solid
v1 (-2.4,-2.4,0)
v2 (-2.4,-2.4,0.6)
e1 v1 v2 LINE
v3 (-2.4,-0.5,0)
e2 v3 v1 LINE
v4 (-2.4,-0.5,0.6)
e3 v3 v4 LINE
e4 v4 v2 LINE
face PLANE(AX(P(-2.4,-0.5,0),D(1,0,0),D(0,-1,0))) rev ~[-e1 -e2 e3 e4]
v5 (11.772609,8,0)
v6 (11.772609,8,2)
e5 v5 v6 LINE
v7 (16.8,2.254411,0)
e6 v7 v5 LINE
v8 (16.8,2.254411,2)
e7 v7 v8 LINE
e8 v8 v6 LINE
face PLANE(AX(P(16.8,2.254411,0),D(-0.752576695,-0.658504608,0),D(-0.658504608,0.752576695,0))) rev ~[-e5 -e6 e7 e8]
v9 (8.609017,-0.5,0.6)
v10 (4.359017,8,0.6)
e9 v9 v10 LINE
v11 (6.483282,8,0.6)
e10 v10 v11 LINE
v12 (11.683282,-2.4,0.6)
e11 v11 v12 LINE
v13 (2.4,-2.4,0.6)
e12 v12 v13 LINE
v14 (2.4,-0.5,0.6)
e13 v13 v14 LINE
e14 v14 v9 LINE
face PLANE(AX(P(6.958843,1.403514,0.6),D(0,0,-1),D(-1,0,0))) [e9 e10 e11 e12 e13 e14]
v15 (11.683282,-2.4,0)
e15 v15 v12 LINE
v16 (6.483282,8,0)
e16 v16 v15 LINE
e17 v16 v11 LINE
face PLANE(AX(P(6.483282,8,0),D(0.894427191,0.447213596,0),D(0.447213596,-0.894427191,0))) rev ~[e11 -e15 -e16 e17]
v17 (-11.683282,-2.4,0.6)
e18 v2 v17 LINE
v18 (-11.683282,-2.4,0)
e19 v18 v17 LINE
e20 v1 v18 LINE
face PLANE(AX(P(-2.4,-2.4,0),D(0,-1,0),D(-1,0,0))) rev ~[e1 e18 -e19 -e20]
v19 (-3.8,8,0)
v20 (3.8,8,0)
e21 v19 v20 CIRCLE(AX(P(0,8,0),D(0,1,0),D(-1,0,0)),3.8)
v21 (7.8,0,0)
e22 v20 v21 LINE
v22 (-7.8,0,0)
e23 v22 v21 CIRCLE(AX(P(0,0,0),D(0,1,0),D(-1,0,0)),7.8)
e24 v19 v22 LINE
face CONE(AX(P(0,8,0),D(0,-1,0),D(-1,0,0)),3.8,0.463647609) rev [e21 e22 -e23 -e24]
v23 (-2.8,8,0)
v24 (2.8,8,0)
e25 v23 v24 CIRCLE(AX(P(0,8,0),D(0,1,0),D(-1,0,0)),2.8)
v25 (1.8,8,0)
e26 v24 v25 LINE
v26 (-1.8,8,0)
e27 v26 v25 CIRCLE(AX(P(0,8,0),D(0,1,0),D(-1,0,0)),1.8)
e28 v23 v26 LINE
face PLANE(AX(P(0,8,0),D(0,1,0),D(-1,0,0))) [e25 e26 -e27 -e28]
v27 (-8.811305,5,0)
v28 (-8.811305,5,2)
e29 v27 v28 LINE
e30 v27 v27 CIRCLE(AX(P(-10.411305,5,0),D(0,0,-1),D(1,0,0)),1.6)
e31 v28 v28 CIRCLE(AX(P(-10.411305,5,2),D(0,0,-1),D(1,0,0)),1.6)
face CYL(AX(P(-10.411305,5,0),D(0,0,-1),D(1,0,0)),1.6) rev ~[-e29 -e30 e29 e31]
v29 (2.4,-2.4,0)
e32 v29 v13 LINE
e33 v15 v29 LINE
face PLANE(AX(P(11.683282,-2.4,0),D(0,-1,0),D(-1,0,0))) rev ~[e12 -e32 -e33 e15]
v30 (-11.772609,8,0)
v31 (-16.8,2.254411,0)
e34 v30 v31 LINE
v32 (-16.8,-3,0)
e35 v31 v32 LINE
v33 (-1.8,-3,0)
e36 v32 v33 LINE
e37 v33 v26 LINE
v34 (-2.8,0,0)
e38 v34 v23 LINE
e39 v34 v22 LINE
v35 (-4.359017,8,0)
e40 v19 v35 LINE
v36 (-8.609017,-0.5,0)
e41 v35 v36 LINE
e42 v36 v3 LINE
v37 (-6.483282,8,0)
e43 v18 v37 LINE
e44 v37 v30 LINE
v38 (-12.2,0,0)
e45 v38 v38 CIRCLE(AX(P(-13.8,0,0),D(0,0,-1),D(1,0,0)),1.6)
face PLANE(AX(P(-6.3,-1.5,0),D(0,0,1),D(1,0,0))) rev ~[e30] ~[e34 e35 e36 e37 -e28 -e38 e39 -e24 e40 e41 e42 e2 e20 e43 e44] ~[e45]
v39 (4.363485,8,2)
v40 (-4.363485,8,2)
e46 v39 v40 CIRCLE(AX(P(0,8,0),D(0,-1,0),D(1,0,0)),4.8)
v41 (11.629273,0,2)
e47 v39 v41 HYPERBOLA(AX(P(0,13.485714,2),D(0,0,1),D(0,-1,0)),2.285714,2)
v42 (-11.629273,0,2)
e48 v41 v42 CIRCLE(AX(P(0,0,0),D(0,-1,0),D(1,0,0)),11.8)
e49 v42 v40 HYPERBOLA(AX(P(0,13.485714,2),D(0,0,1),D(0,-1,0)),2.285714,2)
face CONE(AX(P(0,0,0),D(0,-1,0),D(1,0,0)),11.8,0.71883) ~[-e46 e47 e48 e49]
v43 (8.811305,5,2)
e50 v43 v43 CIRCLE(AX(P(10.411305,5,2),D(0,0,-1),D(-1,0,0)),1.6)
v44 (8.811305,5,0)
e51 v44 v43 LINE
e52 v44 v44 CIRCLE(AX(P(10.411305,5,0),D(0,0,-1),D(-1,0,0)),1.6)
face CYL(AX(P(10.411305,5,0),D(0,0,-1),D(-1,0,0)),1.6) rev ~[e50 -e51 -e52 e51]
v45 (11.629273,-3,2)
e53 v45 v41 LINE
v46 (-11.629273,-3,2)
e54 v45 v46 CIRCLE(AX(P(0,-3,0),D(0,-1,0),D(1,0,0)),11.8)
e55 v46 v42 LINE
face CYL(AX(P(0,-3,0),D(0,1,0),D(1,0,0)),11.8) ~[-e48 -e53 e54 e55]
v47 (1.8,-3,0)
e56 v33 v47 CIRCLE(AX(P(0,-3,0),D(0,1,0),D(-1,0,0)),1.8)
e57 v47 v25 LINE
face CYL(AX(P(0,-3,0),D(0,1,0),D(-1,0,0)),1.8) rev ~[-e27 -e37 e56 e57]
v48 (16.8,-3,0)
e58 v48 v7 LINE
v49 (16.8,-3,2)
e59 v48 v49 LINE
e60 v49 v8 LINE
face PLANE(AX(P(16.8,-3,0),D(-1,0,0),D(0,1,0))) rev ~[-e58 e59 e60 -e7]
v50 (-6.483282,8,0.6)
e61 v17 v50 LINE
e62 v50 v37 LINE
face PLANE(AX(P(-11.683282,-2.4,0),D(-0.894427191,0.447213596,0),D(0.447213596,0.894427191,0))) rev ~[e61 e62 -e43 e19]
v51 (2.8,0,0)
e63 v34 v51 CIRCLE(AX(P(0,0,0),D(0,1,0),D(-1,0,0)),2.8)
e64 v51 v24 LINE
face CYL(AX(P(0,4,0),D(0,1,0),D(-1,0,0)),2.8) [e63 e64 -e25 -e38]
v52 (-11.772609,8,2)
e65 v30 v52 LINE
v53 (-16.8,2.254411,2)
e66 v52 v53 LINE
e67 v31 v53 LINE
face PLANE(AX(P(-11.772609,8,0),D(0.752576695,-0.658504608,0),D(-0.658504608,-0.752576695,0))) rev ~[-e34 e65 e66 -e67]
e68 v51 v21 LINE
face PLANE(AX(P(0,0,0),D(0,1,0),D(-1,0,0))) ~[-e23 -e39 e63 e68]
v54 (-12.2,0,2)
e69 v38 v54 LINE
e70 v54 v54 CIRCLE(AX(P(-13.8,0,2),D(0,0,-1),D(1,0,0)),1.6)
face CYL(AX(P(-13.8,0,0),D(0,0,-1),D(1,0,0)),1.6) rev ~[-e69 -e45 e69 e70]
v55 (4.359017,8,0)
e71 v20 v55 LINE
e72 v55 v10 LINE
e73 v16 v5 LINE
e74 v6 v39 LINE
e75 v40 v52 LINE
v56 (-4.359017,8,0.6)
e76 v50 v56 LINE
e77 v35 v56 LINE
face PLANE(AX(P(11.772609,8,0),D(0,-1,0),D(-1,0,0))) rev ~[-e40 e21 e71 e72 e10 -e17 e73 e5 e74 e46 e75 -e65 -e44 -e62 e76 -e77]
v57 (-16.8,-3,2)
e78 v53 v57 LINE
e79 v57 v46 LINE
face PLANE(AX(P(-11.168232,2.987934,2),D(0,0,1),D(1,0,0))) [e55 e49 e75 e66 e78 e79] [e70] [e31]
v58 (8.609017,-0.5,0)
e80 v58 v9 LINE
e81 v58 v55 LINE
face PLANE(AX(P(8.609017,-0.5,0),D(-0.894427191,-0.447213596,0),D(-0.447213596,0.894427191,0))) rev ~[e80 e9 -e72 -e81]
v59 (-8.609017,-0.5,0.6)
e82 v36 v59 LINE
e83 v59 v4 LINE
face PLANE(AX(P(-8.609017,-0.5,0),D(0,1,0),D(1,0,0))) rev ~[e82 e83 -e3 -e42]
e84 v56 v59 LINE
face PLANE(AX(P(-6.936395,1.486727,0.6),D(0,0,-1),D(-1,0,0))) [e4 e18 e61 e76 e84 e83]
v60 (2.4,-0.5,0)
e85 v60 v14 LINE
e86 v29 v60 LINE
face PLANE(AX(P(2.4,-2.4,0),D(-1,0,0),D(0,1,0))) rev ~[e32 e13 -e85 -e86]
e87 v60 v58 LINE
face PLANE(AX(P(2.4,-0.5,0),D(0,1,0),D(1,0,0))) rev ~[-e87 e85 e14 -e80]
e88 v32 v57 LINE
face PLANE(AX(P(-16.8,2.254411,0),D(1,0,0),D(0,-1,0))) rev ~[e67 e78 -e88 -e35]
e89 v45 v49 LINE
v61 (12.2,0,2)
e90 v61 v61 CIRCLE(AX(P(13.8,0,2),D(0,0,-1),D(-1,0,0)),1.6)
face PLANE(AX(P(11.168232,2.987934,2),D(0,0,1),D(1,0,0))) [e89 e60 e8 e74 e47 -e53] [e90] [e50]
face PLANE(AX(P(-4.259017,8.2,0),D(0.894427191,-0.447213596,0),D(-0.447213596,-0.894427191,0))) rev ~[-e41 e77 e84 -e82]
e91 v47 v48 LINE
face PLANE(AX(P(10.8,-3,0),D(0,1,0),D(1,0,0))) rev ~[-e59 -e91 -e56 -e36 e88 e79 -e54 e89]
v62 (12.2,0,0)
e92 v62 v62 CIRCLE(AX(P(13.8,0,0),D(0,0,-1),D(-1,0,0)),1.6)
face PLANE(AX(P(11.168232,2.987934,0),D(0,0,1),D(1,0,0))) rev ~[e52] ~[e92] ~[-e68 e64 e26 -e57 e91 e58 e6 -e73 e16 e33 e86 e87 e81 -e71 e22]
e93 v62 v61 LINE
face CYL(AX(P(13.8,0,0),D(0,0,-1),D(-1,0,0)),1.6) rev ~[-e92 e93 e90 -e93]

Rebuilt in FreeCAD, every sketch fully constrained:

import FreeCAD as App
import Part
import Sketcher
Q = App.Units.Quantity


def add_polygon(sketch, points):
    """Adds a closed chain of lines whose ends are joined by coincident constraints."""
    first, n = sketch.GeometryCount, len(points)
    for a, b in zip(points, points[1:] + points[:1]):
        sketch.addGeometry(Part.LineSegment(App.Vector(*a, 0), App.Vector(*b, 0)), False)
    for i in range(n):
        sketch.addConstraint(Sketcher.Constraint("Coincident", first + i, 2, first + (i + 1) % n, 1))

doc = App.newDocument("Part")
body = doc.addObject("PartDesign::Body", "Body")

# Sketch on XY plane
sketch1 = body.newObject("Sketcher::SketchObject", "Sketch")
sketch1.AttachmentSupport = (doc.getObject("XY_Plane"), [""])
sketch1.MapMode = "FlatFace"
add_polygon(sketch1, [(-1.8, -3), (-1.8, 8), (-2.8, 8), (-2.8, 0), (-7.8, 0), (-3.8, 8), (-10.8, 0), (-10.8, -3)])  # lines 0-7
sketch1.addConstraint(Sketcher.Constraint("Vertical", 0))
sketch1.addConstraint(Sketcher.Constraint("Horizontal", 1))
sketch1.addConstraint(Sketcher.Constraint("Vertical", 2))
sketch1.addConstraint(Sketcher.Constraint("Horizontal", 3))
sketch1.addConstraint(Sketcher.Constraint("Vertical", 6))
sketch1.addConstraint(Sketcher.Constraint("Horizontal", 7))
sketch1.addConstraint(Sketcher.Constraint("PointOnObject", 2, 2, -1))
sketch1.addConstraint(Sketcher.Constraint("PointOnObject", 5, 2, -1))
sketch1.addConstraint(Sketcher.Constraint("Horizontal", 1, 2, 4, 2))
sketch1.addConstraint(Sketcher.Constraint("DistanceX", 1, 2, 1, 1, Q("1 mm")))
sketch1.addConstraint(Sketcher.Constraint("DistanceX", 3, 2, 3, 1, Q("5 mm")))
sketch1.addConstraint(Sketcher.Constraint("DistanceX", 7, 1, 7, 2, Q("9 mm")))
sketch1.addConstraint(Sketcher.Constraint("DistanceY", 0, 1, 0, 2, Q("11 mm")))
sketch1.addConstraint(Sketcher.Constraint("DistanceY", 2, 2, 2, 1, Q("8 mm")))
sketch1.addConstraint(Sketcher.Constraint("DistanceX", 4, 2, 1, 2, Q("1 mm")))
sketch1.addConstraint(Sketcher.Constraint("DistanceX", 0, 2, -1, 1, Q("1.8 mm")))
revolution = body.newObject("PartDesign::Revolution", "Revolution")
revolution.Profile = sketch1
revolution.ReferenceAxis = (sketch1, ["V_Axis"])
revolution.Angle = 180
body2 = doc.addObject("PartDesign::Body", "Body001")

# Sketch on XY plane
sketch2 = body2.newObject("Sketcher::SketchObject", "Sketch001")
sketch2.AttachmentSupport = (doc.getObject("XY_Plane001"), [""])
sketch2.MapMode = "FlatFace"
add_polygon(sketch2, [(16.8, -3), (10.8, -3), (10.8, 0), (3.8, 8), (11.8, 8), (16.8, 2.3)])  # lines 0-5
sketch2.addGeometry(Part.Circle(App.Vector(13.8, 0, 0), App.Vector(0, 0, 1), 1.6), False)  # 6
sketch2.addGeometry(Part.Circle(App.Vector(10.4, 5, 0), App.Vector(0, 0, 1), 1.6), False)  # 7
sketch2.addConstraint(Sketcher.Constraint("Horizontal", 0))
sketch2.addConstraint(Sketcher.Constraint("Vertical", 1))
sketch2.addConstraint(Sketcher.Constraint("Horizontal", 3))
sketch2.addConstraint(Sketcher.Constraint("Vertical", 5))
sketch2.addConstraint(Sketcher.Constraint("Equal", 6, 7))
sketch2.addConstraint(Sketcher.Constraint("PointOnObject", 6, 3, -1))
sketch2.addConstraint(Sketcher.Constraint("PointOnObject", 1, 2, -1))
sketch2.addConstraint(Sketcher.Constraint("Parallel", 2, 4))
sketch2.addConstraint(Sketcher.Constraint("Diameter", 6, Q("3.2 mm")))
sketch2.addConstraint(Sketcher.Constraint("DistanceX", 0, 2, 0, 1, Q("6 mm")))
sketch2.addConstraint(Sketcher.Constraint("DistanceY", 1, 1, 1, 2, Q("3 mm")))
sketch2.addConstraint(Sketcher.Constraint("DistanceY", -1, 1, 7, 3, Q("5 mm")))
sketch2.addConstraint(Sketcher.Constraint("DistanceY", -1, 1, 2, 2, Q("8 mm")))
sketch2.addConstraint(Sketcher.Constraint("DistanceX", 0, 2, 6, 3, Q("3 mm")))
sketch2.addConstraint(Sketcher.Constraint("DistanceX", 2, 2, 1, 2, Q("7 mm")))
sketch2.addConstraint(Sketcher.Constraint("DistanceX", -1, 1, 6, 3, Q("13.8 mm")))
sketch2.addConstraint(Sketcher.Constraint("DistanceX", 3, 1, 3, 2, Q("7.972609 mm")))
sketch2.addConstraint(Sketcher.Constraint("DistanceX", -1, 1, 7, 3, Q("10.411305 mm")))
pad1 = body2.newObject("PartDesign::Pad", "Pad")
pad1.Profile = sketch2
pad1.Length = 2
body3 = doc.addObject("PartDesign::Body", "Body002")

# Sketch on XY plane
sketch3 = body3.newObject("Sketcher::SketchObject", "Sketch002")
sketch3.AttachmentSupport = (doc.getObject("XY_Plane002"), [""])
sketch3.MapMode = "FlatFace"
add_polygon(sketch3, [(-3.8, 8), (-10.8, 0), (-10.8, -3), (-16.8, -3), (-16.8, 2.3), (-11.8, 8)])  # lines 0-5
sketch3.addGeometry(Part.Circle(App.Vector(-13.8, 0, 0), App.Vector(0, 0, 1), 1.6), False)  # 6
sketch3.addGeometry(Part.Circle(App.Vector(-10.4, 5, 0), App.Vector(0, 0, 1), 1.6), False)  # 7
sketch3.addConstraint(Sketcher.Constraint("Vertical", 1))
sketch3.addConstraint(Sketcher.Constraint("Horizontal", 2))
sketch3.addConstraint(Sketcher.Constraint("Vertical", 3))
sketch3.addConstraint(Sketcher.Constraint("Horizontal", 5))
sketch3.addConstraint(Sketcher.Constraint("Equal", 6, 7))
sketch3.addConstraint(Sketcher.Constraint("PointOnObject", 6, 3, -1))
sketch3.addConstraint(Sketcher.Constraint("PointOnObject", 0, 2, -1))
sketch3.addConstraint(Sketcher.Constraint("Parallel", 0, 4))
sketch3.addConstraint(Sketcher.Constraint("Diameter", 6, Q("3.2 mm")))
sketch3.addConstraint(Sketcher.Constraint("DistanceX", 2, 2, 2, 1, Q("6 mm")))
sketch3.addConstraint(Sketcher.Constraint("DistanceY", 1, 2, 1, 1, Q("3 mm")))
sketch3.addConstraint(Sketcher.Constraint("DistanceY", -1, 1, 7, 3, Q("5 mm")))
sketch3.addConstraint(Sketcher.Constraint("DistanceY", -1, 1, 4, 2, Q("8 mm")))
sketch3.addConstraint(Sketcher.Constraint("DistanceX", 6, 3, 0, 2, Q("3 mm")))
sketch3.addConstraint(Sketcher.Constraint("DistanceX", 0, 2, 5, 2, Q("7 mm")))
sketch3.addConstraint(Sketcher.Constraint("DistanceX", 6, 3, -1, 1, Q("13.8 mm")))
sketch3.addConstraint(Sketcher.Constraint("DistanceX", 5, 1, 5, 2, Q("7.972609 mm")))
sketch3.addConstraint(Sketcher.Constraint("DistanceX", 7, 3, -1, 1, Q("10.411305 mm")))
pad2 = body3.newObject("PartDesign::Pad", "Pad001")
pad2.Profile = sketch3
pad2.Length = 2
body.AllowCompound = True
doc.recompute()

boolean = body.newObject("PartDesign::Boolean", "Boolean")
boolean.Type = "Fuse"
boolean.addObjects([body2])
doc.recompute()

boolean2 = body.newObject("PartDesign::Boolean", "Boolean001")
boolean2.Type = "Fuse"
boolean2.addObjects([body3])

# Sketch on XY plane
sketch4 = body.newObject("Sketcher::SketchObject", "Sketch003")
sketch4.AttachmentSupport = (doc.getObject("XY_Plane"), [""])
sketch4.MapMode = "FlatFace"
add_polygon(sketch4, [(11.8, 0), (11.8, -3), (10.8, -3), (10.8, 0), (3.8, 8), (4.8, 8)])  # lines 0-5
sketch4.addConstraint(Sketcher.Constraint("Vertical", 0))
sketch4.addConstraint(Sketcher.Constraint("Horizontal", 1))
sketch4.addConstraint(Sketcher.Constraint("Vertical", 2))
sketch4.addConstraint(Sketcher.Constraint("Horizontal", 4))
sketch4.addConstraint(Sketcher.Constraint("PointOnObject", 2, 2, -1))
sketch4.addConstraint(Sketcher.Constraint("PointOnObject", 5, 2, -1))
sketch4.addConstraint(Sketcher.Constraint("Parallel", 3, 5))
sketch4.addConstraint(Sketcher.Constraint("DistanceX", 1, 2, 1, 1, Q("1 mm")))
sketch4.addConstraint(Sketcher.Constraint("DistanceY", 0, 2, 0, 1, Q("3 mm")))
sketch4.addConstraint(Sketcher.Constraint("DistanceY", -1, 1, 3, 2, Q("8 mm")))
sketch4.addConstraint(Sketcher.Constraint("DistanceX", 3, 2, 2, 2, Q("7 mm")))
sketch4.addConstraint(Sketcher.Constraint("DistanceX", -1, 1, 0, 2, Q("11.8 mm")))
revolution2 = body.newObject("PartDesign::Revolution", "Revolution001")
revolution2.Profile = sketch4
revolution2.ReferenceAxis = (sketch4, ["V_Axis"])
revolution2.Angle = 180
revolution2.Reversed = True

# Sketch on XY plane
sketch5 = body.newObject("Sketcher::SketchObject", "Sketch004")
sketch5.AttachmentSupport = (doc.getObject("XY_Plane"), [""])
sketch5.MapMode = "FlatFace"
add_polygon(sketch5, [(6.5, 8), (11.7, -2.4), (2.4, -2.4), (2.4, -0.5), (8.6, -0.5), (4.4, 8)])  # lines 0-5
add_polygon(sketch5, [(-2.4, -2.4), (-11.7, -2.4), (-6.4, 8.2), (-4.3, 8.2), (-8.6, -0.5), (-2.4, -0.5)])  # lines 6-11
sketch5.addConstraint(Sketcher.Constraint("Horizontal", 1))
sketch5.addConstraint(Sketcher.Constraint("Vertical", 2))
sketch5.addConstraint(Sketcher.Constraint("Horizontal", 3))
sketch5.addConstraint(Sketcher.Constraint("Horizontal", 5))
sketch5.addConstraint(Sketcher.Constraint("Horizontal", 6))
sketch5.addConstraint(Sketcher.Constraint("Horizontal", 8))
sketch5.addConstraint(Sketcher.Constraint("Horizontal", 10))
sketch5.addConstraint(Sketcher.Constraint("Vertical", 11))
sketch5.addConstraint(Sketcher.Constraint("Symmetric", 0, 2, 6, 2, -2))
sketch5.addConstraint(Sketcher.Constraint("Symmetric", 3, 2, 9, 2, -2))
sketch5.addConstraint(Sketcher.Constraint("Parallel", 0, 4))
sketch5.addConstraint(Sketcher.Constraint("Parallel", 7, 9))
sketch5.addConstraint(Sketcher.Constraint("Equal", 1, 6))
sketch5.addConstraint(Sketcher.Constraint("Equal", 5, 8))
sketch5.addConstraint(Sketcher.Constraint("DistanceY", 2, 1, 2, 2, Q("1.9 mm")))
sketch5.addConstraint(Sketcher.Constraint("DistanceY", -1, 1, 4, 2, Q("8 mm")))
sketch5.addConstraint(Sketcher.Constraint("DistanceY", 0, 2, -1, 1, Q("2.4 mm")))
sketch5.addConstraint(Sketcher.Constraint("DistanceX", -1, 1, 1, 2, Q("2.4 mm")))
sketch5.addConstraint(Sketcher.Constraint("DistanceY", -1, 1, 7, 2, Q("8.2 mm")))
sketch5.addConstraint(Sketcher.Constraint("DistanceX", 5, 2, 0, 2, Q("5.2 mm")))
sketch5.addConstraint(Sketcher.Constraint("DistanceX", 1, 2, 1, 1, Q("9.283282 mm")))
sketch5.addConstraint(Sketcher.Constraint("DistanceX", 6, 2, 4, 2, Q("16.042299 mm")))
pocket1 = body.newObject("PartDesign::Pocket", "Pocket")
pocket1.Profile = sketch5
pocket1.Length = 0.6
pocket1.Reversed = True

doc.recompute()
